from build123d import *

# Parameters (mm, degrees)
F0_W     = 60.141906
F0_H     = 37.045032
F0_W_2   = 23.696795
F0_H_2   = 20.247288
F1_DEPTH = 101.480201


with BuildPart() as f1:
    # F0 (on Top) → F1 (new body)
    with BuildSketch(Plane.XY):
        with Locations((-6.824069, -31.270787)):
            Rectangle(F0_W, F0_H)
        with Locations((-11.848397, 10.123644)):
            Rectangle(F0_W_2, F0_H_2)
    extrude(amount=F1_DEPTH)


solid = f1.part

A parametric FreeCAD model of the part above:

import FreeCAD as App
import Part
import Sketcher

doc = App.newDocument("Part")
params = doc.addObject("Spreadsheet::Sheet", "Params")
for row, (alias, value) in enumerate([
    ("pad1_length", "101.480201 mm"),
], start=1):
    params.set(f"A{row}", alias)
    params.set(f"B{row}", "=" + value)
    params.setAlias(f"B{row}", alias)

body = doc.addObject("PartDesign::Body", "Body")
body.AllowCompound = True

# Sketch on XY plane
sketch1 = body.newObject("Sketcher::SketchObject", "Sketch")
sketch1.AttachmentSupport = (doc.getObject("XY_Plane"), [""])
sketch1.MapMode = "FlatFace"
sketch1.addGeometry(Part.LineSegment(App.Vector(-37, -13, 0), App.Vector(-37, -50, 0)), False)
sketch1.addGeometry(Part.LineSegment(App.Vector(-37, -50, 0), App.Vector(23, -50, 0)), False)
sketch1.addGeometry(Part.LineSegment(App.Vector(23, -50, 0), App.Vector(23, -13, 0)), False)
sketch1.addGeometry(Part.LineSegment(App.Vector(23, -13, 0), App.Vector(-37, -13, 0)), False)
sketch1.addGeometry(Part.LineSegment(App.Vector(-24, 20, 0), App.Vector(-24, 0, 0)), False)
sketch1.addGeometry(Part.LineSegment(App.Vector(-24, 0, 0), App.Vector(0, 0, 0)), False)
sketch1.addGeometry(Part.LineSegment(App.Vector(0, 0, 0), App.Vector(0, 20, 0)), False)
sketch1.addGeometry(Part.LineSegment(App.Vector(0, 20, 0), App.Vector(-24, 20, 0)), False)
sketch1.addConstraint(Sketcher.Constraint("Coincident", 0, 2, 1, 1))
sketch1.addConstraint(Sketcher.Constraint("Coincident", 1, 2, 2, 1))
sketch1.addConstraint(Sketcher.Constraint("Coincident", 2, 2, 3, 1))
sketch1.addConstraint(Sketcher.Constraint("Coincident", 3, 2, 0, 1))
sketch1.addConstraint(Sketcher.Constraint("Coincident", 4, 2, 5, 1))
sketch1.addConstraint(Sketcher.Constraint("Coincident", 5, 2, 6, 1))
sketch1.addConstraint(Sketcher.Constraint("Coincident", 6, 2, 7, 1))
sketch1.addConstraint(Sketcher.Constraint("Coincident", 7, 2, 4, 1))
sketch1.addConstraint(Sketcher.Constraint("Vertical", 0))
sketch1.addConstraint(Sketcher.Constraint("Horizontal", 1))
sketch1.addConstraint(Sketcher.Constraint("Vertical", 2))
sketch1.addConstraint(Sketcher.Constraint("Horizontal", 3))
sketch1.addConstraint(Sketcher.Constraint("Vertical", 4))
sketch1.addConstraint(Sketcher.Constraint("Horizontal", 5))
sketch1.addConstraint(Sketcher.Constraint("Vertical", 6))
sketch1.addConstraint(Sketcher.Constraint("Horizontal", 7))
sketch1.addConstraint(Sketcher.Constraint("Coincident", 5, 2, -1, 1))
sketch1.addConstraint(Sketcher.Constraint("DistanceY", 4, 2, 4, 1, 20.247288))
sketch1.addConstraint(Sketcher.Constraint("DistanceX", 1, 1, 1, 2, 60.141906))
sketch1.addConstraint(Sketcher.Constraint("DistanceX", 5, 1, 5, 2, 23.696795))
sketch1.addConstraint(Sketcher.Constraint("DistanceY", 0, 2, 0, 1, 37.045032))
sketch1.addConstraint(Sketcher.Constraint("DistanceX", 0, 2, -1, 1, 36.895022))
sketch1.addConstraint(Sketcher.Constraint("DistanceY", 2, 2, -1, 1, 12.748271))
pad1 = body.newObject("PartDesign::Pad", "Pad")
pad1.Profile = sketch1
pad1.setExpression("Length", "Params.pad1_length")

doc.recompute()
